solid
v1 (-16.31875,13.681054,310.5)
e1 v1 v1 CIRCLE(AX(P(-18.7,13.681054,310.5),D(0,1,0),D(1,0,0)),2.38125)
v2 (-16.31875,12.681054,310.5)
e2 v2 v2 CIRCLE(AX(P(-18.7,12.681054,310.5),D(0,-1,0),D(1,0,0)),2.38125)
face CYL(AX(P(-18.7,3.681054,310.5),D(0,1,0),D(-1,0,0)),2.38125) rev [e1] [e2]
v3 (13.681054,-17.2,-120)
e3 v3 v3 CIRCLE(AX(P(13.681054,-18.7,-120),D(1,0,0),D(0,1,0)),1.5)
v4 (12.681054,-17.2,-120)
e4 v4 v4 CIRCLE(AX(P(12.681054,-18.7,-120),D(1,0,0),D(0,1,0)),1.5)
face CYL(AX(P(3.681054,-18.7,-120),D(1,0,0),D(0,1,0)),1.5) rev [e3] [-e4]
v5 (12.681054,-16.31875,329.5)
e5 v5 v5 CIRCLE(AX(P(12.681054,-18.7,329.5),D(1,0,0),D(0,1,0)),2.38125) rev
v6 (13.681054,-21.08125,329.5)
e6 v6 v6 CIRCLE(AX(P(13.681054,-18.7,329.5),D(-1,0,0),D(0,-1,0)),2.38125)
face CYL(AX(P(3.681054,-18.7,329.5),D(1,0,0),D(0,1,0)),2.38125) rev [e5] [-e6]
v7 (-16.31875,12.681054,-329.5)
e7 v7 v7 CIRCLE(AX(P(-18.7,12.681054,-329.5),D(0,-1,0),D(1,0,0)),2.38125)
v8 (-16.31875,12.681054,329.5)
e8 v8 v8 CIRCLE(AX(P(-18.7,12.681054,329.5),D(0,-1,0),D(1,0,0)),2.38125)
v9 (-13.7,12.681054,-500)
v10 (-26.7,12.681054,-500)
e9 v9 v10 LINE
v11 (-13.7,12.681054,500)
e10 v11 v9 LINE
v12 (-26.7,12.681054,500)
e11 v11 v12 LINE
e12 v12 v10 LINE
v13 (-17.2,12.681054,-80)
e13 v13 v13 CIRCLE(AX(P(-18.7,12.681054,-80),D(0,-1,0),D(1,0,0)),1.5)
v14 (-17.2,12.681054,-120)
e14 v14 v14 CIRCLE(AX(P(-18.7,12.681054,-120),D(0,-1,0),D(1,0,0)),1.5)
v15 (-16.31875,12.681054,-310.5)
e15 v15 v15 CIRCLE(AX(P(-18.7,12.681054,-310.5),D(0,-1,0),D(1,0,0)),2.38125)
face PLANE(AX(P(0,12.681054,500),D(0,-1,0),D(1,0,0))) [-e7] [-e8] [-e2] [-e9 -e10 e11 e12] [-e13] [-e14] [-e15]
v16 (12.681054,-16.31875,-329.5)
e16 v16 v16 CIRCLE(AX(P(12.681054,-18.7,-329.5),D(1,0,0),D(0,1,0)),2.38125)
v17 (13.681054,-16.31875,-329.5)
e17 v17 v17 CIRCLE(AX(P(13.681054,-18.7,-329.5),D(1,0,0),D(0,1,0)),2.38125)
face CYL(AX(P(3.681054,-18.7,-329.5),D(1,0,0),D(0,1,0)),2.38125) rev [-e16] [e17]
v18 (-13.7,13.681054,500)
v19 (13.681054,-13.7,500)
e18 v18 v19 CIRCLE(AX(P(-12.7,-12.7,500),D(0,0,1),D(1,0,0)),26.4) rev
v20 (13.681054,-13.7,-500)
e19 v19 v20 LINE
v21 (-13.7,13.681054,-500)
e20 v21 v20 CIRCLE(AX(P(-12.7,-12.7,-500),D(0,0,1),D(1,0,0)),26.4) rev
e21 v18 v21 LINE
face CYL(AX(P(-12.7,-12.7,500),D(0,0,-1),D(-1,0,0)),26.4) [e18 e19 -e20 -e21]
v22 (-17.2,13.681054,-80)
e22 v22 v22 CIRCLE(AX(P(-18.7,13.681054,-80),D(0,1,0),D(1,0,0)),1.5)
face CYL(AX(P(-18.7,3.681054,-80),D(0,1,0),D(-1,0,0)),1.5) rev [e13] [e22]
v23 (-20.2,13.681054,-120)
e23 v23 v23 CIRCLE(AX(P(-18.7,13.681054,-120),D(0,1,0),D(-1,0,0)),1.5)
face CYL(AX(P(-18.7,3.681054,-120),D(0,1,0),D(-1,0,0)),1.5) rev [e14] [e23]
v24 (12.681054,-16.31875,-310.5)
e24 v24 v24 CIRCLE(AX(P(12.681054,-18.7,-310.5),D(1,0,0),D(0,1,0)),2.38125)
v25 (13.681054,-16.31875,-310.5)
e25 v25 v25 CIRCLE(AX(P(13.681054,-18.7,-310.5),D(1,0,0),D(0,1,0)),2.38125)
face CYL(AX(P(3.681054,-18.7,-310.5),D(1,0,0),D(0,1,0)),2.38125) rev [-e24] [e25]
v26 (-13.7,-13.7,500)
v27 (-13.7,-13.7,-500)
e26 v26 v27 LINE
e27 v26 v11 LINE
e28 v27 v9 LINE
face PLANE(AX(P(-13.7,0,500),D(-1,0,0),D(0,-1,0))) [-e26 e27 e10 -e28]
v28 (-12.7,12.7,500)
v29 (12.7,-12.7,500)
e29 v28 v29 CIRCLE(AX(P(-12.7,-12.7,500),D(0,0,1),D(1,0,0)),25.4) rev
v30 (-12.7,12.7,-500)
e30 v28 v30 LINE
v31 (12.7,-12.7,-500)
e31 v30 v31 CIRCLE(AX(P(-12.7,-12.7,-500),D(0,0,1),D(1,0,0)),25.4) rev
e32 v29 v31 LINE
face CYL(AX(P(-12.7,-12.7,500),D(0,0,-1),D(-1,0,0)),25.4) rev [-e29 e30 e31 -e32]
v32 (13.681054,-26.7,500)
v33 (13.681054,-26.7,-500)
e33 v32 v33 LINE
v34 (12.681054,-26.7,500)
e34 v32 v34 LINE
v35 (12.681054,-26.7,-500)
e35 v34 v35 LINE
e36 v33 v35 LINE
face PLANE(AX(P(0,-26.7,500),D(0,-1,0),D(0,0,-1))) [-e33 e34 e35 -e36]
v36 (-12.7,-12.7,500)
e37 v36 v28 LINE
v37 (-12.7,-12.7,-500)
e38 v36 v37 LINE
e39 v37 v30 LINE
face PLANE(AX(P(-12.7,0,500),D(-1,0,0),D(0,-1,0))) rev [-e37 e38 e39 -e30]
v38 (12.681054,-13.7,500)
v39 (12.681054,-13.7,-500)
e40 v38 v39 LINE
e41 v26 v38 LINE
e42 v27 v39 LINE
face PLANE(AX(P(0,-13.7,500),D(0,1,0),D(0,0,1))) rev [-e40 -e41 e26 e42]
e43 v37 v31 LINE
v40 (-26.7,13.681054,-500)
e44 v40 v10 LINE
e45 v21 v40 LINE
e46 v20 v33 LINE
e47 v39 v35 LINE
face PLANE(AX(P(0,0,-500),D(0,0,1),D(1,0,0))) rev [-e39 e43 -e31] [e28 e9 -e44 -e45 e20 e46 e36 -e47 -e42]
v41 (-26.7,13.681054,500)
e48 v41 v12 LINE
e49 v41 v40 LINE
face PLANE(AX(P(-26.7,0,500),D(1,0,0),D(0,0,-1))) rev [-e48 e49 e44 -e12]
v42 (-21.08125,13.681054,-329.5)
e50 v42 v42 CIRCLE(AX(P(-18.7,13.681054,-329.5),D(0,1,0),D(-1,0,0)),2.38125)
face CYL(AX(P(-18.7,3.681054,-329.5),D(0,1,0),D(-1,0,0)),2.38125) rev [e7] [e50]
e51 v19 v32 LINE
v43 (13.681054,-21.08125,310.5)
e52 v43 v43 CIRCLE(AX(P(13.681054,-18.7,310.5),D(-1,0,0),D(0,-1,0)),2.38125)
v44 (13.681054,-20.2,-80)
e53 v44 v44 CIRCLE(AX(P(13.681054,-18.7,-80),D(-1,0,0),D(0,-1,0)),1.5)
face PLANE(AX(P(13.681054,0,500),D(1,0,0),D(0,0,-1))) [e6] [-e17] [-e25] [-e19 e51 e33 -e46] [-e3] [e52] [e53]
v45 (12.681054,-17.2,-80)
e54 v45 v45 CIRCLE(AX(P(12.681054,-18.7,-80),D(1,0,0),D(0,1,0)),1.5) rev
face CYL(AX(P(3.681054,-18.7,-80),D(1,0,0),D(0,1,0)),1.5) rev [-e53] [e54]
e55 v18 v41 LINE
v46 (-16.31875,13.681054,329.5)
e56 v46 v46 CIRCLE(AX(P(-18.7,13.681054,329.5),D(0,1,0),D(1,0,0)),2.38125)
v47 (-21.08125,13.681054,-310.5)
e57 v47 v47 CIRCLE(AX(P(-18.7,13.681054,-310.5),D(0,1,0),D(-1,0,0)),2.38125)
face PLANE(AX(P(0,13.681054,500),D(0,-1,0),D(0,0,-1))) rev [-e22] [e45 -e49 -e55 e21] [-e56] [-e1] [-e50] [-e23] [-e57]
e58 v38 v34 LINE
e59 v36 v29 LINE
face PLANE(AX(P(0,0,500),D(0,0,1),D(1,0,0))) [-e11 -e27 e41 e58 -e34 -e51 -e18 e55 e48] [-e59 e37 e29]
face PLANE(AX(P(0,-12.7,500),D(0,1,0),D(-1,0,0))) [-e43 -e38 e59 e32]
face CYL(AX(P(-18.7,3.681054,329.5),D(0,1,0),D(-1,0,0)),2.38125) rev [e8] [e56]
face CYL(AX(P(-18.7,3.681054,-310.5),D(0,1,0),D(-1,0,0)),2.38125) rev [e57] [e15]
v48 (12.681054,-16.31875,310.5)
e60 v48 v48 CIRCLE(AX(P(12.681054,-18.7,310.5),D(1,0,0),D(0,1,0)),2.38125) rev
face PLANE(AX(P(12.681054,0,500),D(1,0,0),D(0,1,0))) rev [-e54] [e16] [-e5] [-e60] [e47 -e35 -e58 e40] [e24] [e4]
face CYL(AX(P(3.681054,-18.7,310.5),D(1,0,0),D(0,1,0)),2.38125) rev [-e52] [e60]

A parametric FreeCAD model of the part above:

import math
import FreeCAD as App
import Part
import Sketcher

V = App.Vector
Q = App.Units.Quantity

doc = App.newDocument("Part")
params = doc.addObject("Spreadsheet::Sheet", "Params")
for row, (alias, value) in enumerate([
    ("sketch1_radius", "26.4 mm"),
    ("sketch1_radius2", "25.4 mm"),
    ("sketch1_width", "13 mm"),
    ("sketch1_width2", "1 mm"),
    ("pad1_length", "1000 mm"),
    ("sketch2_diameter", "3 mm"),
    ("pocket1_length", "10 mm"),
    ("sketch3_diameter", "3 mm"),
    ("pocket2_length", "10 mm"),
], start=1):
    params.set(f"A{row}", alias)
    params.set(f"B{row}", "=" + value)
    params.setAlias(f"B{row}", alias)

body = doc.addObject("PartDesign::Body", "Body")

sketch1 = doc.addObject("Sketcher::SketchObject", "Sketch")
body.addObject(sketch1)
sketch1.AttachmentSupport = (doc.XY_Plane, [""])
sketch1.MapMode = "FlatFace"
sketch1.addGeometry([
    Part.ArcOfCircle(Part.Circle(V(-12.7, -12.7, 0), V(0, 0, 1), 26.4), math.radians(-2.170814), math.radians(92.170814)),
    Part.LineSegment(V(-13.7, 13.681054, 0), V(-26.7, 13.681054, 0)),
    Part.LineSegment(V(-26.7, 13.681054, 0), V(-26.7, 12.681054, 0)),
    Part.LineSegment(V(-26.7, 12.681054, 0), V(-13.7, 12.681054, 0)),
    Part.LineSegment(V(-13.7, 12.681054, 0), V(-13.7, -13.7, 0)),
    Part.LineSegment(V(-13.7, -13.7, 0), V(12.681054, -13.7, 0)),
    Part.LineSegment(V(12.681054, -13.7, 0), V(12.681054, -26.7, 0)),
    Part.LineSegment(V(12.681054, -26.7, 0), V(13.681054, -26.7, 0)),
    Part.LineSegment(V(13.681054, -26.7, 0), V(13.681054, -13.7, 0)),
    Part.LineSegment(V(-12.7, -12.7, 0), V(-12.7, 12.7, 0)),
    Part.ArcOfCircle(Part.Circle(V(-12.7, -12.7, 0), V(0, 0, 1), 25.4), math.radians(0), math.radians(90)),
    Part.LineSegment(V(12.7, -12.7, 0), V(-12.7, -12.7, 0)),
], False)
sketch1.addConstraint([
    Sketcher.Constraint("Coincident", 0, 2, 1, 1),
    Sketcher.Constraint("Coincident", 1, 2, 2, 1),
    Sketcher.Constraint("Coincident", 2, 2, 3, 1),
    Sketcher.Constraint("Coincident", 3, 2, 4, 1),
    Sketcher.Constraint("Coincident", 4, 2, 5, 1),
    Sketcher.Constraint("Coincident", 5, 2, 6, 1),
    Sketcher.Constraint("Coincident", 6, 2, 7, 1),
    Sketcher.Constraint("Coincident", 7, 2, 8, 1),
    Sketcher.Constraint("Coincident", 8, 2, 0, 1),
    Sketcher.Constraint("Coincident", 9, 2, 10, 2),
    Sketcher.Constraint("Coincident", 10, 1, 11, 1),
    Sketcher.Constraint("Coincident", 11, 2, 9, 1),
    Sketcher.Constraint("Horizontal", 1),
    Sketcher.Constraint("Vertical", 2),
    Sketcher.Constraint("Horizontal", 3),
    Sketcher.Constraint("Vertical", 4),
    Sketcher.Constraint("Horizontal", 5),
    Sketcher.Constraint("Vertical", 6),
    Sketcher.Constraint("Horizontal", 7),
    Sketcher.Constraint("Vertical", 8),
    Sketcher.Constraint("Vertical", 9),
    Sketcher.Constraint("Horizontal", 11),
    Sketcher.Constraint("Coincident", 10, 3, 0, 3),
    Sketcher.Constraint("Coincident", 11, 2, 0, 3),
    Sketcher.Constraint("Symmetric", 9, 2, 10, 1, -1, 1),
    Sketcher.Constraint("Horizontal", 5, 2, 8, 2),
    Sketcher.Constraint("Vertical", 0, 2, 3, 2),
    Sketcher.Constraint("Equal", 7, 2),
    Sketcher.Constraint("Equal", 5, 4),
    Sketcher.Constraint("Equal", 3, 6),
    Sketcher.Constraint("Radius", 0, Q("26.4 mm")),
    Sketcher.Constraint("Radius", 10, Q("25.4 mm")),
    Sketcher.Constraint("DistanceX", 1, 2, 1, 1, Q("13 mm")),
    Sketcher.Constraint("DistanceX", 7, 1, 7, 2, Q("1 mm")),
    Sketcher.Constraint("DistanceX", 0, 2, 10, 3, Q("1 mm")),
])
sketch1.setExpression("Constraints[30]", "Params.sketch1_radius")
sketch1.setExpression("Constraints[31]", "Params.sketch1_radius2")
sketch1.setExpression("Constraints[32]", "Params.sketch1_width")
sketch1.setExpression("Constraints[33]", "Params.sketch1_width2")
pad1 = doc.addObject("PartDesign::Pad", "Pad")
body.addObject(pad1)
pad1.Profile = sketch1
pad1.setExpression("Length", "Params.pad1_length")
pad1.Midplane = True

sketch2 = doc.addObject("Sketcher::SketchObject", "Sketch001")
body.addObject(sketch2)
sketch2.AttachmentSupport = (doc.YZ_Plane, [""])
sketch2.MapMode = "FlatFace"
sketch2.AttachmentOffset = App.Placement(V(0, 0, 13.681054), App.Rotation())
sketch2.addGeometry([
    Part.Circle(V(-18.7, -310.5, 0), V(0, 0, 1), 2.38125),
    Part.Circle(V(-18.7, -329.5, 0), V(0, 0, 1), 2.38125),
    Part.Circle(V(-18.7, 329.5, 0), V(0, 0, 1), 2.38125),
    Part.Circle(V(-18.7, 310.5, 0), V(0, 0, 1), 2.38125),
    Part.Circle(V(-18.7, -120, 0), V(0, 0, 1), 1.5),
    Part.Circle(V(-18.7, -80, 0), V(0, 0, 1), 1.5),
], False)
sketch2.addConstraint([
    Sketcher.Constraint("Equal", 0, 1),
    Sketcher.Constraint("Equal", 1, 2),
    Sketcher.Constraint("Equal", 2, 3),
    Sketcher.Constraint("Equal", 4, 5),
    Sketcher.Constraint("Symmetric", 1, 3, 2, 3, -1),
    Sketcher.Constraint("Symmetric", 0, 3, 3, 3, -1),
    Sketcher.Constraint("Vertical", 0, 3, 1, 3),
    Sketcher.Constraint("Vertical", 3, 3, 4, 3),
    Sketcher.Constraint("Vertical", 4, 3, 5, 3),
    Sketcher.Constraint("Diameter", 4, Q("3 mm")),
    Sketcher.Constraint("DistanceY", 4, 3, -1, 1, Q("120 mm")),
    Sketcher.Constraint("DistanceY", 5, 3, -1, 1, Q("80 mm")),
    Sketcher.Constraint("DistanceY", 1, 3, 0, 3, Q("19 mm")),
    Sketcher.Constraint("DistanceY", 0, 3, 2, 3, Q("640 mm")),
    Sketcher.Constraint("Diameter", 0, Q("4.7625 mm")),
    Sketcher.Constraint("DistanceX", 0, 3, -1, 1, Q("18.7 mm")),
])
sketch2.setExpression("Constraints[9]", "Params.sketch2_diameter")
pocket1 = doc.addObject("PartDesign::Pocket", "Pocket")
body.addObject(pocket1)
pocket1.Profile = sketch2
pocket1.setExpression("Length", "Params.pocket1_length")

sketch3 = doc.addObject("Sketcher::SketchObject", "Sketch002")
body.addObject(sketch3)
sketch3.AttachmentSupport = (doc.XZ_Plane, [""])
sketch3.MapMode = "FlatFace"
sketch3.AttachmentOffset = App.Placement(V(0, 0, -13.681054), App.Rotation())
sketch3.addGeometry([
    Part.Circle(V(-18.7, -329.5, 0), V(0, 0, 1), 2.38125),
    Part.Circle(V(-18.7, -310.5, 0), V(0, 0, 1), 2.38125),
    Part.Circle(V(-18.7, 310.5, 0), V(0, 0, 1), 2.38125),
    Part.Circle(V(-18.7, 329.5, 0), V(0, 0, 1), 2.38125),
    Part.Circle(V(-18.7, -120, 0), V(0, 0, 1), 1.5),
    Part.Circle(V(-18.7, -80, 0), V(0, 0, 1), 1.5),
], False)
sketch3.addConstraint([
    Sketcher.Constraint("Equal", 0, 1),
    Sketcher.Constraint("Equal", 1, 2),
    Sketcher.Constraint("Equal", 2, 3),
    Sketcher.Constraint("Equal", 4, 5),
    Sketcher.Constraint("Symmetric", 1, 3, 2, 3, -1),
    Sketcher.Constraint("Symmetric", 0, 3, 3, 3, -1),
    Sketcher.Constraint("Vertical", 0, 3, 1, 3),
    Sketcher.Constraint("Vertical", 3, 3, 4, 3),
    Sketcher.Constraint("Vertical", 4, 3, 5, 3),
    Sketcher.Constraint("Diameter", 4, Q("3 mm")),
    Sketcher.Constraint("DistanceY", 4, 3, -1, 1, Q("120 mm")),
    Sketcher.Constraint("DistanceY", 5, 3, -1, 1, Q("80 mm")),
    Sketcher.Constraint("DistanceY", 0, 3, 1, 3, Q("19 mm")),
    Sketcher.Constraint("DistanceY", 1, 3, 2, 3, Q("621 mm")),
    Sketcher.Constraint("Diameter", 0, Q("4.7625 mm")),
    Sketcher.Constraint("DistanceX", 0, 3, -1, 1, Q("18.7 mm")),
])
sketch3.setExpression("Constraints[9]", "Params.sketch3_diameter")
pocket2 = doc.addObject("PartDesign::Pocket", "Pocket001")
body.addObject(pocket2)
pocket2.Profile = sketch3
pocket2.setExpression("Length", "Params.pocket2_length")
pocket2.Reversed = True

doc.recompute()
